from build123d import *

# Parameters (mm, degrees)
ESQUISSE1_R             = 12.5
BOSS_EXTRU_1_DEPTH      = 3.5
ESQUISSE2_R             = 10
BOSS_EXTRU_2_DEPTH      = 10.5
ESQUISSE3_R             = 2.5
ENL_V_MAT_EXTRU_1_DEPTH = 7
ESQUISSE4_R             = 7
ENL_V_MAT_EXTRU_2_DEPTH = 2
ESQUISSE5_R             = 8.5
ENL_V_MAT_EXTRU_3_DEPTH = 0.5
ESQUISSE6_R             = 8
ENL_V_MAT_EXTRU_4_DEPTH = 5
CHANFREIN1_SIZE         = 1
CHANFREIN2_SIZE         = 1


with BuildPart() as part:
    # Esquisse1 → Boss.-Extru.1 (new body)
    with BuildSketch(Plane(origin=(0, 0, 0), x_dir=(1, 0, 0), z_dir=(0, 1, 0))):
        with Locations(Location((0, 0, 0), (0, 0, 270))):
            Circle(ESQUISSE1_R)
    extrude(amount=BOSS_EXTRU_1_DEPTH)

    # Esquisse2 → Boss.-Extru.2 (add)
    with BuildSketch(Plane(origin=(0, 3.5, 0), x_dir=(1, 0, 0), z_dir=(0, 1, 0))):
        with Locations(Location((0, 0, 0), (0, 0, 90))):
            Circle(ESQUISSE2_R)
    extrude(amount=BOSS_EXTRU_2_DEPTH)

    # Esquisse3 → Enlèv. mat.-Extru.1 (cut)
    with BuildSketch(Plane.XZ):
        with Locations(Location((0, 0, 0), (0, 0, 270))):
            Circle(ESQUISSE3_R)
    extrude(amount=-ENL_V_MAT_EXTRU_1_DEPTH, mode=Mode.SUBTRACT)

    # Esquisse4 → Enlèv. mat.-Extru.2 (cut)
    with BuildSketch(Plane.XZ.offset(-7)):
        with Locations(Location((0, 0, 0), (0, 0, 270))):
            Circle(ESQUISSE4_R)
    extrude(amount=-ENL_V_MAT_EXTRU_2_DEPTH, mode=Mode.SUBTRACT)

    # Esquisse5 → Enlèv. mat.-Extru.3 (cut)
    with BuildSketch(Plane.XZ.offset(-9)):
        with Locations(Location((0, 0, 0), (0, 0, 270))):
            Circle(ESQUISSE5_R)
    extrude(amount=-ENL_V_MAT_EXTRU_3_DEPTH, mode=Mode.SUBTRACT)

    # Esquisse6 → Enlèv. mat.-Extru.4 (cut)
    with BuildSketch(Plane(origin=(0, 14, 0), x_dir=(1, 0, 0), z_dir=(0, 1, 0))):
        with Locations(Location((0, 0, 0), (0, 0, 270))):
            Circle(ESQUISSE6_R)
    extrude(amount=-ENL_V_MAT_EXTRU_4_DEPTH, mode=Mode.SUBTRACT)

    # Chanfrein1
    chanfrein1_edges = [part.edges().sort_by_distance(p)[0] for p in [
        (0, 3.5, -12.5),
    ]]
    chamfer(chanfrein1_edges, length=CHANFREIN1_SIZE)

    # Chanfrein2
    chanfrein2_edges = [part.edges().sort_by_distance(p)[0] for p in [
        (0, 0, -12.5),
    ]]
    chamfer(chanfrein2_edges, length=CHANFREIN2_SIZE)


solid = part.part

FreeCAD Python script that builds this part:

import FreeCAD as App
import Part
import Sketcher

V = App.Vector


def edges_at(feature, points):
    """Names of the edges that pass closest to the given points."""
    edges = feature.Shape.Edges
    near = lambda p: min(range(len(edges)), key=lambda i: edges[i].distToShape(Part.Vertex(*p))[0])
    return sorted({f"Edge{near(p) + 1}" for p in points})

doc = App.newDocument("Part")
params = doc.addObject("Spreadsheet::Sheet", "Params")
for row, (alias, value) in enumerate([
    ("sketch1_diameter", "25 mm"),
    ("pad1_length", "3.5 mm"),
    ("sketch2_diameter", "20 mm"),
    ("pad2_length", "10.5 mm"),
    ("sketch3_diameter", "5 mm"),
    ("pocket1_length", "7 mm"),
    ("sketch4_diameter", "14 mm"),
    ("pocket2_length", "2 mm"),
    ("sketch5_diameter", "17 mm"),
    ("pocket3_length", "0.5 mm"),
    ("sketch6_diameter", "16 mm"),
    ("pocket4_length", "5 mm"),
    ("chamfer_size", "1 mm"),
    ("chamfer2_size", "1 mm"),
], start=1):
    params.set(f"A{row}", alias)
    params.set(f"B{row}", "=" + value)
    params.setAlias(f"B{row}", alias)

body = doc.addObject("PartDesign::Body", "Body")

# Sketch on XZ plane
sketch1 = doc.addObject("Sketcher::SketchObject", "Sketch")
body.addObject(sketch1)
sketch1.AttachmentSupport = (doc.XZ_Plane, [""])
sketch1.MapMode = "FlatFace"
sketch1.addGeometry(Part.Circle(V(0, 0, 0), V(0, 0, 1), 12), False)
sketch1.addConstraint([
    Sketcher.Constraint("Coincident", 0, 3, -1, 1),
    Sketcher.Constraint("Diameter", 0, 25.0),
])
sketch1.setExpression("Constraints[1]", "Params.sketch1_diameter")
pad1 = doc.addObject("PartDesign::Pad", "Pad")
body.addObject(pad1)
pad1.Profile = sketch1
pad1.setExpression("Length", "Params.pad1_length")
pad1.Reversed = True

# Sketch on XZ plane
sketch2 = doc.addObject("Sketcher::SketchObject", "Sketch001")
body.addObject(sketch2)
sketch2.AttachmentSupport = (doc.XZ_Plane, [""])
sketch2.MapMode = "FlatFace"
sketch2.AttachmentOffset = App.Placement(V(0, 0, -3.5), App.Rotation())
sketch2.addGeometry(Part.Circle(V(0, 0, 0), V(0, 0, 1), 10), False)
sketch2.addConstraint([
    Sketcher.Constraint("Coincident", 0, 3, -1, 1),
    Sketcher.Constraint("Diameter", 0, 20.0),
])
sketch2.setExpression("Constraints[1]", "Params.sketch2_diameter")
pad2 = doc.addObject("PartDesign::Pad", "Pad001")
body.addObject(pad2)
pad2.Profile = sketch2
pad2.setExpression("Length", "Params.pad2_length")
pad2.Reversed = True

# Sketch on XZ plane
sketch3 = doc.addObject("Sketcher::SketchObject", "Sketch002")
body.addObject(sketch3)
sketch3.AttachmentSupport = (doc.XZ_Plane, [""])
sketch3.MapMode = "FlatFace"
sketch3.addGeometry(Part.Circle(V(0, 0, 0), V(0, 0, 1), 2.5), False)
sketch3.addConstraint([
    Sketcher.Constraint("Coincident", 0, 3, -1, 1),
    Sketcher.Constraint("Diameter", 0, 5.0),
])
sketch3.setExpression("Constraints[1]", "Params.sketch3_diameter")
pocket1 = doc.addObject("PartDesign::Pocket", "Pocket")
body.addObject(pocket1)
pocket1.Profile = sketch3
pocket1.setExpression("Length", "Params.pocket1_length")

# Sketch on XZ plane
sketch4 = doc.addObject("Sketcher::SketchObject", "Sketch003")
body.addObject(sketch4)
sketch4.AttachmentSupport = (doc.XZ_Plane, [""])
sketch4.MapMode = "FlatFace"
sketch4.AttachmentOffset = App.Placement(V(0, 0, -7), App.Rotation())
sketch4.addGeometry(Part.Circle(V(0, 0, 0), V(0, 0, 1), 7), False)
sketch4.addConstraint([
    Sketcher.Constraint("Coincident", 0, 3, -1, 1),
    Sketcher.Constraint("Diameter", 0, 14.0),
])
sketch4.setExpression("Constraints[1]", "Params.sketch4_diameter")
pocket2 = doc.addObject("PartDesign::Pocket", "Pocket001")
body.addObject(pocket2)
pocket2.Profile = sketch4
pocket2.setExpression("Length", "Params.pocket2_length")

# Sketch on XZ plane
sketch5 = doc.addObject("Sketcher::SketchObject", "Sketch004")
body.addObject(sketch5)
sketch5.AttachmentSupport = (doc.XZ_Plane, [""])
sketch5.MapMode = "FlatFace"
sketch5.AttachmentOffset = App.Placement(V(0, 0, -9), App.Rotation())
sketch5.addGeometry(Part.Circle(V(0, 0, 0), V(0, 0, 1), 8), False)
sketch5.addConstraint([
    Sketcher.Constraint("Coincident", 0, 3, -1, 1),
    Sketcher.Constraint("Diameter", 0, 17.0),
])
sketch5.setExpression("Constraints[1]", "Params.sketch5_diameter")
pocket3 = doc.addObject("PartDesign::Pocket", "Pocket002")
body.addObject(pocket3)
pocket3.Profile = sketch5
pocket3.setExpression("Length", "Params.pocket3_length")

# Sketch on XZ plane
sketch6 = doc.addObject("Sketcher::SketchObject", "Sketch005")
body.addObject(sketch6)
sketch6.AttachmentSupport = (doc.XZ_Plane, [""])
sketch6.MapMode = "FlatFace"
sketch6.AttachmentOffset = App.Placement(V(0, 0, -14), App.Rotation())
sketch6.addGeometry(Part.Circle(V(0, 0, 0), V(0, 0, 1), 8), False)
sketch6.addConstraint([
    Sketcher.Constraint("Coincident", 0, 3, -1, 1),
    Sketcher.Constraint("Diameter", 0, 16.0),
])
sketch6.setExpression("Constraints[1]", "Params.sketch6_diameter")
pocket4 = doc.addObject("PartDesign::Pocket", "Pocket003")
body.addObject(pocket4)
pocket4.Profile = sketch6
pocket4.setExpression("Length", "Params.pocket4_length")
pocket4.Reversed = True
doc.recompute()

chamfer = doc.addObject("PartDesign::Chamfer", "Chamfer")
body.addObject(chamfer)
chamfer.Base = (pocket4, edges_at(pocket4, [(0, 3.5, -12.5)]))
chamfer.setExpression("Size", "Params.chamfer_size")
doc.recompute()

chamfer2 = doc.addObject("PartDesign::Chamfer", "Chamfer001")
body.addObject(chamfer2)
chamfer2.Base = (chamfer, edges_at(chamfer, [(0, 0, -12.5)]))
chamfer2.setExpression("Size", "Params.chamfer2_size")

doc.recompute()
